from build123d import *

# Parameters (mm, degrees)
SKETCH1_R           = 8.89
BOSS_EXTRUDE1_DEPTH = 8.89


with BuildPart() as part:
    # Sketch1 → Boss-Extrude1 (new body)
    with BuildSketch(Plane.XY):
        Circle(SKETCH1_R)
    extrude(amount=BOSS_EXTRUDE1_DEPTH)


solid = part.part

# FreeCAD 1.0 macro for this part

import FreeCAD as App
import Part
import Sketcher

V = App.Vector
Q = App.Units.Quantity

doc = App.newDocument("Part")
body = doc.addObject("PartDesign::Body", "Body")

sketch1 = body.newObject("Sketcher::SketchObject", "Sketch")
sketch1.AttachmentSupport = (doc.getObject("XY_Plane"), [""])
sketch1.MapMode = "FlatFace"
sketch1.addGeometry(Part.Circle(V(0, 0, 0), V(0, 0, 1), 9), False)
sketch1.addConstraint([
    Sketcher.Constraint("Coincident", 0, 3, -1, 1),
    Sketcher.Constraint("Diameter", 0, Q("0.7 in")),
])
pad1 = body.newObject("PartDesign::Pad", "Pad")
pad1.Profile = sketch1
pad1.Length = Q("0.35 in")

doc.recompute()
